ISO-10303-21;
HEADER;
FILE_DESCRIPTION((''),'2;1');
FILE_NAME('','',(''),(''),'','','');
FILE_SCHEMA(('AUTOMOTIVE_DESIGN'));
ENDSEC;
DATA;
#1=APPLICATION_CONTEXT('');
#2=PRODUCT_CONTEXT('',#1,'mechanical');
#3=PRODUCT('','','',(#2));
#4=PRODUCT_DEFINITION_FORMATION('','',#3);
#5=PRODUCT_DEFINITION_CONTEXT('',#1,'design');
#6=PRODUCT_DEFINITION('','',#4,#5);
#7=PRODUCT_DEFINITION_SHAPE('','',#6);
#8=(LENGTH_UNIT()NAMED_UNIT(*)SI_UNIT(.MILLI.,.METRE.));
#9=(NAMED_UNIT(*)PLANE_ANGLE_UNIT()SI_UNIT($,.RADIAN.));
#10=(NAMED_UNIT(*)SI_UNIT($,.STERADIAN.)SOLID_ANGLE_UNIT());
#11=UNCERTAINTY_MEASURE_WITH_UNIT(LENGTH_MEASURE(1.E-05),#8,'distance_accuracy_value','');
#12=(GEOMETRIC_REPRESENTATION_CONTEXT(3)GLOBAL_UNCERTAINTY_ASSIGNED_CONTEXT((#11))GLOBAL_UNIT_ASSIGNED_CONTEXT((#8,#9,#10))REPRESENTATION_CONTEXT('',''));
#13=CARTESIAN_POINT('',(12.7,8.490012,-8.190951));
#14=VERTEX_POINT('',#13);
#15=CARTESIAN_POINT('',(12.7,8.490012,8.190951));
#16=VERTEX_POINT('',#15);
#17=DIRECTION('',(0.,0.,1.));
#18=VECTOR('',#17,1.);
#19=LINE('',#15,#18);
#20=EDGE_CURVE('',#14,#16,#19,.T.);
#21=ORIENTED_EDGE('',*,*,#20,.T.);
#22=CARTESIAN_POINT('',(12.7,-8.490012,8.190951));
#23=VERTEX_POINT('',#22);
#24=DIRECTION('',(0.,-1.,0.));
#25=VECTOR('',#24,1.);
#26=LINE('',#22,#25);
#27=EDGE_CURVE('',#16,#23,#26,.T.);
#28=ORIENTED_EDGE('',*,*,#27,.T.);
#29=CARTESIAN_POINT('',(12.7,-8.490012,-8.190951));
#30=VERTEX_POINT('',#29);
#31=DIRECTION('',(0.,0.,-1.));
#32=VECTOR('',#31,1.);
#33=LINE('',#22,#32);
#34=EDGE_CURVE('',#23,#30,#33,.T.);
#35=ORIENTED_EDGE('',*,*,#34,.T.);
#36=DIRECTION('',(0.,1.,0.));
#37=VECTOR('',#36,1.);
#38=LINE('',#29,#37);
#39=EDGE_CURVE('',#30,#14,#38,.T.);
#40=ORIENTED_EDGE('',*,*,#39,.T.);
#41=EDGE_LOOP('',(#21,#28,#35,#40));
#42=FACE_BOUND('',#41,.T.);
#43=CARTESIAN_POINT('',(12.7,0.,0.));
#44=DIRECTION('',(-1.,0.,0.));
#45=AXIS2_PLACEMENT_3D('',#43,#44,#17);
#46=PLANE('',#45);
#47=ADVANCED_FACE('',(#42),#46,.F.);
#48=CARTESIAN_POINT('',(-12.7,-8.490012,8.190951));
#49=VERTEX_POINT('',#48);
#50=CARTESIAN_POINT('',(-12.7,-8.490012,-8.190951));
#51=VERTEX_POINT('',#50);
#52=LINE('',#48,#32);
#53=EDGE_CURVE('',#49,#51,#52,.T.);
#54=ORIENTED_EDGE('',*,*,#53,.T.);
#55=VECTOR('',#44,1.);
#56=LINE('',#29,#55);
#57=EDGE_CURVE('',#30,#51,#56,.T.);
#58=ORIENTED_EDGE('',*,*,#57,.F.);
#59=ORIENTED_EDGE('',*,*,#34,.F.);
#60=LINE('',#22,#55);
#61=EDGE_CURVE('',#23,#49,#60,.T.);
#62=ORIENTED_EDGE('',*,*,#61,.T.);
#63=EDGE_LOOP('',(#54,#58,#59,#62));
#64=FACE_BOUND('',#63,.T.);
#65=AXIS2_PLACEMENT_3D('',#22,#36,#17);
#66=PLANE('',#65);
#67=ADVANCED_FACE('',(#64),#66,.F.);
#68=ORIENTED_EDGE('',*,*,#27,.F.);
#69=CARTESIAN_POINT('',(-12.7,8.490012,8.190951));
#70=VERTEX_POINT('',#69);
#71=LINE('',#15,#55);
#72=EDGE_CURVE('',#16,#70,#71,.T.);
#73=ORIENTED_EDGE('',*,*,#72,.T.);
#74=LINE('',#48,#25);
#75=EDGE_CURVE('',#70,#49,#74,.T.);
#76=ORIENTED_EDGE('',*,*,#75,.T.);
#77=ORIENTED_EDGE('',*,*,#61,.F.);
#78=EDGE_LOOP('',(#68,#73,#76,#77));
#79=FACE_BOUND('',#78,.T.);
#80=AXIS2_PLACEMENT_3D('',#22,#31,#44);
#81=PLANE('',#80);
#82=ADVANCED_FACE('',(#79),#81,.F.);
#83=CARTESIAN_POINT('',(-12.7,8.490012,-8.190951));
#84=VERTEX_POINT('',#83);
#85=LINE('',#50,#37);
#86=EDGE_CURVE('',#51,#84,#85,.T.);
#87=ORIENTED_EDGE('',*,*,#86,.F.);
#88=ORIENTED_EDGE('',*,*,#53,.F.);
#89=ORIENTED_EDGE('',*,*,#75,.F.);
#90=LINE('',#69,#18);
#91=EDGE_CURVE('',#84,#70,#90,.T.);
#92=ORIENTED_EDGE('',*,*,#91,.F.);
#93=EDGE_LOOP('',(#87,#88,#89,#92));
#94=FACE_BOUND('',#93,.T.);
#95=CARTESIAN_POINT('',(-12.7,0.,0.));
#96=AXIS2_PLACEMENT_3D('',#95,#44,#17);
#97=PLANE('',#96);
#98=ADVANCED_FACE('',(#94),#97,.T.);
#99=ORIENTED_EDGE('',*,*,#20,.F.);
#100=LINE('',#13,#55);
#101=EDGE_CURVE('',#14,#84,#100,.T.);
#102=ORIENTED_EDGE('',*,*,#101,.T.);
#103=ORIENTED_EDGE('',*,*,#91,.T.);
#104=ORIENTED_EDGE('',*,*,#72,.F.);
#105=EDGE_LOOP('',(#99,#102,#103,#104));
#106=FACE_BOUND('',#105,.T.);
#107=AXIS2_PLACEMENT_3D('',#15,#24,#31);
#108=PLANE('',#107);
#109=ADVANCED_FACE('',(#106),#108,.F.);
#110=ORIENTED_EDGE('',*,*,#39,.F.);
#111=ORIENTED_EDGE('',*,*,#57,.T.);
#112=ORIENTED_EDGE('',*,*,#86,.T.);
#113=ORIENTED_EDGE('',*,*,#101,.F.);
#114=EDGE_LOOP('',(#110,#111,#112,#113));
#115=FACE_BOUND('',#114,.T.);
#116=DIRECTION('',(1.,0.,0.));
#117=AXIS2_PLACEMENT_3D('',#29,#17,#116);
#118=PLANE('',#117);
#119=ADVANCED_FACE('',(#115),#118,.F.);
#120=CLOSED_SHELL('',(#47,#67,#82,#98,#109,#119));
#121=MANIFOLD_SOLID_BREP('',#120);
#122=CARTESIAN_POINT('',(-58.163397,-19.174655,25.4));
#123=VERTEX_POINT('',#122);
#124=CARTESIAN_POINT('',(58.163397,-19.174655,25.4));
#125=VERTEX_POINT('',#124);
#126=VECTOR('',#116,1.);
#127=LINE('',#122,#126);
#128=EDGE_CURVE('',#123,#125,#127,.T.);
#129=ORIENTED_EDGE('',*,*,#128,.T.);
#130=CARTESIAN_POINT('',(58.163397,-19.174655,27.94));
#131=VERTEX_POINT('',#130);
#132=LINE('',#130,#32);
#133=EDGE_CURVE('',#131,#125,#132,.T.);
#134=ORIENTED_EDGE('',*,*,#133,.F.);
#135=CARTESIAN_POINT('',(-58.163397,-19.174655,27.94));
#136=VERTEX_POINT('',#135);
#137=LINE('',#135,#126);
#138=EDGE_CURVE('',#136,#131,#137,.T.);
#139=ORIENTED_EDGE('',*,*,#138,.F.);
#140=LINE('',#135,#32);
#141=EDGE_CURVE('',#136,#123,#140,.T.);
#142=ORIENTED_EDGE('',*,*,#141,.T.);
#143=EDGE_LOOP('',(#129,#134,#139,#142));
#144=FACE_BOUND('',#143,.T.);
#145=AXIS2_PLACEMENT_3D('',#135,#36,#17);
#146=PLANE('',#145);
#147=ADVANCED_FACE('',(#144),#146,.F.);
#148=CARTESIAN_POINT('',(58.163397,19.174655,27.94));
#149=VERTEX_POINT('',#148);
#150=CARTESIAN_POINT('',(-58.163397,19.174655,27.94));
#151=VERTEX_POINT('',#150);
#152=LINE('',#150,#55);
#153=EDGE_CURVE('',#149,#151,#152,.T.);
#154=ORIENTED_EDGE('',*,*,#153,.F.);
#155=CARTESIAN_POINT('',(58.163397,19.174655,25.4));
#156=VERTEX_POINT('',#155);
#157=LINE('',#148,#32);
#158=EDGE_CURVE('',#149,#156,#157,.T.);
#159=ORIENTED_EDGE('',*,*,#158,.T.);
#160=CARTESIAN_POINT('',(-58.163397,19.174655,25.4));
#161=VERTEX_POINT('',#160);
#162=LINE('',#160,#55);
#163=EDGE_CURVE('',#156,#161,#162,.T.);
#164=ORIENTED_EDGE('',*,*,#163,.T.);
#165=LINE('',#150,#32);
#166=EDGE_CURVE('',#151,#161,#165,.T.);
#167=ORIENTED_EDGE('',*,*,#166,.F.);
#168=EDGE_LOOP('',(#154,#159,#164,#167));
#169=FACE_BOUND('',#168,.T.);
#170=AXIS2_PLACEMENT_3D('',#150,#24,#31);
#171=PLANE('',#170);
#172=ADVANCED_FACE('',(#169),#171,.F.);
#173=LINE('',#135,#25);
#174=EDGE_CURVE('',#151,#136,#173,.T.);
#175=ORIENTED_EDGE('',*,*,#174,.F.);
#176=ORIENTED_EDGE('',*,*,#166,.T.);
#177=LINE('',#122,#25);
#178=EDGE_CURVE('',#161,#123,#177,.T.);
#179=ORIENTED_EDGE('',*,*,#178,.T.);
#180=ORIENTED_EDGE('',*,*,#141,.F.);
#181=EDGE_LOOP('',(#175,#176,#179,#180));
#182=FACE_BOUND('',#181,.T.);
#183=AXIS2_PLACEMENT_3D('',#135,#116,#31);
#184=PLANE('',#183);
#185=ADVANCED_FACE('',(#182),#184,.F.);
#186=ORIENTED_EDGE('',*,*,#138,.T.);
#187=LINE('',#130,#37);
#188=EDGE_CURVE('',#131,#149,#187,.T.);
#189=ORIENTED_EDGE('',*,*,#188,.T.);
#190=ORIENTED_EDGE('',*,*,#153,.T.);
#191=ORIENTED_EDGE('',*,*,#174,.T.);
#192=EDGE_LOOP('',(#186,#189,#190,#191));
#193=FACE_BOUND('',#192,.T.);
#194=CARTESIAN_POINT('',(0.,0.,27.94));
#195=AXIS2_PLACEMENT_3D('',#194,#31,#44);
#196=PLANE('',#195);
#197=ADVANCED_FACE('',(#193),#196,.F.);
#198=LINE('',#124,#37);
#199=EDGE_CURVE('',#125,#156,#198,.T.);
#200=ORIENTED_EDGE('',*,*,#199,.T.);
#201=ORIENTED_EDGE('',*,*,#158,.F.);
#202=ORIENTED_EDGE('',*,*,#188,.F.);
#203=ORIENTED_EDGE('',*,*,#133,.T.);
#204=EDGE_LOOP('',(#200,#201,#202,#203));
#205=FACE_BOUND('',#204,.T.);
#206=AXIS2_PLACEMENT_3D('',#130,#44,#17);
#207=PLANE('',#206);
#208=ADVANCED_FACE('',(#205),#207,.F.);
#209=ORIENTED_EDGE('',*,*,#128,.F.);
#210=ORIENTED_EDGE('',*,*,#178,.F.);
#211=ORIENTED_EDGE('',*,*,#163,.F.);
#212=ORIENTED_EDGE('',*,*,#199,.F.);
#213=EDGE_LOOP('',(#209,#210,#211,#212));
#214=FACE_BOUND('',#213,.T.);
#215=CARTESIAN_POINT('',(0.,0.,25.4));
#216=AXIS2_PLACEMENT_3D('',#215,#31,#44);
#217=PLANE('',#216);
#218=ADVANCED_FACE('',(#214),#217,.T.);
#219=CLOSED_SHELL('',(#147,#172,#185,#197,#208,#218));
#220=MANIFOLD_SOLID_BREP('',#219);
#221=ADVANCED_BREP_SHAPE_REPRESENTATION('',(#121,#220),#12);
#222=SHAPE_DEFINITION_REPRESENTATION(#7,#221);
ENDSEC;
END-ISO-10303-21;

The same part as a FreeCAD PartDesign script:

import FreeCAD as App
import Part
import Sketcher

V = App.Vector
Q = App.Units.Quantity


def add_polygon(sketch, points):
    """Adds a closed chain of lines whose ends are joined by coincident constraints."""
    first, n = sketch.GeometryCount, len(points)
    for a, b in zip(points, points[1:] + points[:1]):
        sketch.addGeometry(Part.LineSegment(App.Vector(*a, 0), App.Vector(*b, 0)), False)
    for i in range(n):
        sketch.addConstraint(Sketcher.Constraint("Coincident", first + i, 2, first + (i + 1) % n, 1))

doc = App.newDocument("Part")
body = doc.addObject("PartDesign::Body", "Body")

sketch1 = body.newObject("Sketcher::SketchObject", "Sketch")
sketch1.AttachmentSupport = (doc.getObject("XY_Plane"), [""])
sketch1.MapMode = "FlatFace"
sketch1.AttachmentOffset = App.Placement(V(0, 0, 1 * 25.4), App.Rotation())
add_polygon(sketch1, [(-58, 19), (-58, -19), (58, -19), (58, 19)])
sketch1.addConstraint(Sketcher.Constraint("Vertical", 0))
sketch1.addConstraint(Sketcher.Constraint("Horizontal", 1))
sketch1.addConstraint(Sketcher.Constraint("Vertical", 2))
sketch1.addConstraint(Sketcher.Constraint("Horizontal", 3))
sketch1.addConstraint(Sketcher.Constraint("Symmetric", 0, 2, 2, 2, -1, 1))
sketch1.addConstraint(Sketcher.Constraint("DistanceY", 0, 2, 0, 1, Q("38.34931 mm")))
sketch1.addConstraint(Sketcher.Constraint("DistanceX", 1, 1, 1, 2, Q("116.326794 mm")))
pad1 = body.newObject("PartDesign::Pad", "Pad")
pad1.Profile = sketch1
pad1.Length = Q("0.1 in")
body2 = doc.addObject("PartDesign::Body", "Body001")

sketch2 = body2.newObject("Sketcher::SketchObject", "Sketch001")
sketch2.AttachmentSupport = (doc.getObject("YZ_Plane001"), [""])
sketch2.MapMode = "FlatFace"
add_polygon(sketch2, [(8, 8), (-8, 8), (-8, -8), (8, -8)])
sketch2.addConstraint(Sketcher.Constraint("Horizontal", 0))
sketch2.addConstraint(Sketcher.Constraint("Vertical", 1))
sketch2.addConstraint(Sketcher.Constraint("Horizontal", 2))
sketch2.addConstraint(Sketcher.Constraint("Vertical", 3))
sketch2.addConstraint(Sketcher.Constraint("Symmetric", 0, 2, 2, 2, -1, 1))
sketch2.addConstraint(Sketcher.Constraint("DistanceX", 0, 2, 0, 1, Q("16.980023 mm")))
sketch2.addConstraint(Sketcher.Constraint("DistanceY", 1, 2, 1, 1, Q("16.381902 mm")))
pad2 = body2.newObject("PartDesign::Pad", "Pad001")
pad2.Profile = sketch2
pad2.Length = Q("1 in")
pad2.Midplane = True

doc.recompute()
